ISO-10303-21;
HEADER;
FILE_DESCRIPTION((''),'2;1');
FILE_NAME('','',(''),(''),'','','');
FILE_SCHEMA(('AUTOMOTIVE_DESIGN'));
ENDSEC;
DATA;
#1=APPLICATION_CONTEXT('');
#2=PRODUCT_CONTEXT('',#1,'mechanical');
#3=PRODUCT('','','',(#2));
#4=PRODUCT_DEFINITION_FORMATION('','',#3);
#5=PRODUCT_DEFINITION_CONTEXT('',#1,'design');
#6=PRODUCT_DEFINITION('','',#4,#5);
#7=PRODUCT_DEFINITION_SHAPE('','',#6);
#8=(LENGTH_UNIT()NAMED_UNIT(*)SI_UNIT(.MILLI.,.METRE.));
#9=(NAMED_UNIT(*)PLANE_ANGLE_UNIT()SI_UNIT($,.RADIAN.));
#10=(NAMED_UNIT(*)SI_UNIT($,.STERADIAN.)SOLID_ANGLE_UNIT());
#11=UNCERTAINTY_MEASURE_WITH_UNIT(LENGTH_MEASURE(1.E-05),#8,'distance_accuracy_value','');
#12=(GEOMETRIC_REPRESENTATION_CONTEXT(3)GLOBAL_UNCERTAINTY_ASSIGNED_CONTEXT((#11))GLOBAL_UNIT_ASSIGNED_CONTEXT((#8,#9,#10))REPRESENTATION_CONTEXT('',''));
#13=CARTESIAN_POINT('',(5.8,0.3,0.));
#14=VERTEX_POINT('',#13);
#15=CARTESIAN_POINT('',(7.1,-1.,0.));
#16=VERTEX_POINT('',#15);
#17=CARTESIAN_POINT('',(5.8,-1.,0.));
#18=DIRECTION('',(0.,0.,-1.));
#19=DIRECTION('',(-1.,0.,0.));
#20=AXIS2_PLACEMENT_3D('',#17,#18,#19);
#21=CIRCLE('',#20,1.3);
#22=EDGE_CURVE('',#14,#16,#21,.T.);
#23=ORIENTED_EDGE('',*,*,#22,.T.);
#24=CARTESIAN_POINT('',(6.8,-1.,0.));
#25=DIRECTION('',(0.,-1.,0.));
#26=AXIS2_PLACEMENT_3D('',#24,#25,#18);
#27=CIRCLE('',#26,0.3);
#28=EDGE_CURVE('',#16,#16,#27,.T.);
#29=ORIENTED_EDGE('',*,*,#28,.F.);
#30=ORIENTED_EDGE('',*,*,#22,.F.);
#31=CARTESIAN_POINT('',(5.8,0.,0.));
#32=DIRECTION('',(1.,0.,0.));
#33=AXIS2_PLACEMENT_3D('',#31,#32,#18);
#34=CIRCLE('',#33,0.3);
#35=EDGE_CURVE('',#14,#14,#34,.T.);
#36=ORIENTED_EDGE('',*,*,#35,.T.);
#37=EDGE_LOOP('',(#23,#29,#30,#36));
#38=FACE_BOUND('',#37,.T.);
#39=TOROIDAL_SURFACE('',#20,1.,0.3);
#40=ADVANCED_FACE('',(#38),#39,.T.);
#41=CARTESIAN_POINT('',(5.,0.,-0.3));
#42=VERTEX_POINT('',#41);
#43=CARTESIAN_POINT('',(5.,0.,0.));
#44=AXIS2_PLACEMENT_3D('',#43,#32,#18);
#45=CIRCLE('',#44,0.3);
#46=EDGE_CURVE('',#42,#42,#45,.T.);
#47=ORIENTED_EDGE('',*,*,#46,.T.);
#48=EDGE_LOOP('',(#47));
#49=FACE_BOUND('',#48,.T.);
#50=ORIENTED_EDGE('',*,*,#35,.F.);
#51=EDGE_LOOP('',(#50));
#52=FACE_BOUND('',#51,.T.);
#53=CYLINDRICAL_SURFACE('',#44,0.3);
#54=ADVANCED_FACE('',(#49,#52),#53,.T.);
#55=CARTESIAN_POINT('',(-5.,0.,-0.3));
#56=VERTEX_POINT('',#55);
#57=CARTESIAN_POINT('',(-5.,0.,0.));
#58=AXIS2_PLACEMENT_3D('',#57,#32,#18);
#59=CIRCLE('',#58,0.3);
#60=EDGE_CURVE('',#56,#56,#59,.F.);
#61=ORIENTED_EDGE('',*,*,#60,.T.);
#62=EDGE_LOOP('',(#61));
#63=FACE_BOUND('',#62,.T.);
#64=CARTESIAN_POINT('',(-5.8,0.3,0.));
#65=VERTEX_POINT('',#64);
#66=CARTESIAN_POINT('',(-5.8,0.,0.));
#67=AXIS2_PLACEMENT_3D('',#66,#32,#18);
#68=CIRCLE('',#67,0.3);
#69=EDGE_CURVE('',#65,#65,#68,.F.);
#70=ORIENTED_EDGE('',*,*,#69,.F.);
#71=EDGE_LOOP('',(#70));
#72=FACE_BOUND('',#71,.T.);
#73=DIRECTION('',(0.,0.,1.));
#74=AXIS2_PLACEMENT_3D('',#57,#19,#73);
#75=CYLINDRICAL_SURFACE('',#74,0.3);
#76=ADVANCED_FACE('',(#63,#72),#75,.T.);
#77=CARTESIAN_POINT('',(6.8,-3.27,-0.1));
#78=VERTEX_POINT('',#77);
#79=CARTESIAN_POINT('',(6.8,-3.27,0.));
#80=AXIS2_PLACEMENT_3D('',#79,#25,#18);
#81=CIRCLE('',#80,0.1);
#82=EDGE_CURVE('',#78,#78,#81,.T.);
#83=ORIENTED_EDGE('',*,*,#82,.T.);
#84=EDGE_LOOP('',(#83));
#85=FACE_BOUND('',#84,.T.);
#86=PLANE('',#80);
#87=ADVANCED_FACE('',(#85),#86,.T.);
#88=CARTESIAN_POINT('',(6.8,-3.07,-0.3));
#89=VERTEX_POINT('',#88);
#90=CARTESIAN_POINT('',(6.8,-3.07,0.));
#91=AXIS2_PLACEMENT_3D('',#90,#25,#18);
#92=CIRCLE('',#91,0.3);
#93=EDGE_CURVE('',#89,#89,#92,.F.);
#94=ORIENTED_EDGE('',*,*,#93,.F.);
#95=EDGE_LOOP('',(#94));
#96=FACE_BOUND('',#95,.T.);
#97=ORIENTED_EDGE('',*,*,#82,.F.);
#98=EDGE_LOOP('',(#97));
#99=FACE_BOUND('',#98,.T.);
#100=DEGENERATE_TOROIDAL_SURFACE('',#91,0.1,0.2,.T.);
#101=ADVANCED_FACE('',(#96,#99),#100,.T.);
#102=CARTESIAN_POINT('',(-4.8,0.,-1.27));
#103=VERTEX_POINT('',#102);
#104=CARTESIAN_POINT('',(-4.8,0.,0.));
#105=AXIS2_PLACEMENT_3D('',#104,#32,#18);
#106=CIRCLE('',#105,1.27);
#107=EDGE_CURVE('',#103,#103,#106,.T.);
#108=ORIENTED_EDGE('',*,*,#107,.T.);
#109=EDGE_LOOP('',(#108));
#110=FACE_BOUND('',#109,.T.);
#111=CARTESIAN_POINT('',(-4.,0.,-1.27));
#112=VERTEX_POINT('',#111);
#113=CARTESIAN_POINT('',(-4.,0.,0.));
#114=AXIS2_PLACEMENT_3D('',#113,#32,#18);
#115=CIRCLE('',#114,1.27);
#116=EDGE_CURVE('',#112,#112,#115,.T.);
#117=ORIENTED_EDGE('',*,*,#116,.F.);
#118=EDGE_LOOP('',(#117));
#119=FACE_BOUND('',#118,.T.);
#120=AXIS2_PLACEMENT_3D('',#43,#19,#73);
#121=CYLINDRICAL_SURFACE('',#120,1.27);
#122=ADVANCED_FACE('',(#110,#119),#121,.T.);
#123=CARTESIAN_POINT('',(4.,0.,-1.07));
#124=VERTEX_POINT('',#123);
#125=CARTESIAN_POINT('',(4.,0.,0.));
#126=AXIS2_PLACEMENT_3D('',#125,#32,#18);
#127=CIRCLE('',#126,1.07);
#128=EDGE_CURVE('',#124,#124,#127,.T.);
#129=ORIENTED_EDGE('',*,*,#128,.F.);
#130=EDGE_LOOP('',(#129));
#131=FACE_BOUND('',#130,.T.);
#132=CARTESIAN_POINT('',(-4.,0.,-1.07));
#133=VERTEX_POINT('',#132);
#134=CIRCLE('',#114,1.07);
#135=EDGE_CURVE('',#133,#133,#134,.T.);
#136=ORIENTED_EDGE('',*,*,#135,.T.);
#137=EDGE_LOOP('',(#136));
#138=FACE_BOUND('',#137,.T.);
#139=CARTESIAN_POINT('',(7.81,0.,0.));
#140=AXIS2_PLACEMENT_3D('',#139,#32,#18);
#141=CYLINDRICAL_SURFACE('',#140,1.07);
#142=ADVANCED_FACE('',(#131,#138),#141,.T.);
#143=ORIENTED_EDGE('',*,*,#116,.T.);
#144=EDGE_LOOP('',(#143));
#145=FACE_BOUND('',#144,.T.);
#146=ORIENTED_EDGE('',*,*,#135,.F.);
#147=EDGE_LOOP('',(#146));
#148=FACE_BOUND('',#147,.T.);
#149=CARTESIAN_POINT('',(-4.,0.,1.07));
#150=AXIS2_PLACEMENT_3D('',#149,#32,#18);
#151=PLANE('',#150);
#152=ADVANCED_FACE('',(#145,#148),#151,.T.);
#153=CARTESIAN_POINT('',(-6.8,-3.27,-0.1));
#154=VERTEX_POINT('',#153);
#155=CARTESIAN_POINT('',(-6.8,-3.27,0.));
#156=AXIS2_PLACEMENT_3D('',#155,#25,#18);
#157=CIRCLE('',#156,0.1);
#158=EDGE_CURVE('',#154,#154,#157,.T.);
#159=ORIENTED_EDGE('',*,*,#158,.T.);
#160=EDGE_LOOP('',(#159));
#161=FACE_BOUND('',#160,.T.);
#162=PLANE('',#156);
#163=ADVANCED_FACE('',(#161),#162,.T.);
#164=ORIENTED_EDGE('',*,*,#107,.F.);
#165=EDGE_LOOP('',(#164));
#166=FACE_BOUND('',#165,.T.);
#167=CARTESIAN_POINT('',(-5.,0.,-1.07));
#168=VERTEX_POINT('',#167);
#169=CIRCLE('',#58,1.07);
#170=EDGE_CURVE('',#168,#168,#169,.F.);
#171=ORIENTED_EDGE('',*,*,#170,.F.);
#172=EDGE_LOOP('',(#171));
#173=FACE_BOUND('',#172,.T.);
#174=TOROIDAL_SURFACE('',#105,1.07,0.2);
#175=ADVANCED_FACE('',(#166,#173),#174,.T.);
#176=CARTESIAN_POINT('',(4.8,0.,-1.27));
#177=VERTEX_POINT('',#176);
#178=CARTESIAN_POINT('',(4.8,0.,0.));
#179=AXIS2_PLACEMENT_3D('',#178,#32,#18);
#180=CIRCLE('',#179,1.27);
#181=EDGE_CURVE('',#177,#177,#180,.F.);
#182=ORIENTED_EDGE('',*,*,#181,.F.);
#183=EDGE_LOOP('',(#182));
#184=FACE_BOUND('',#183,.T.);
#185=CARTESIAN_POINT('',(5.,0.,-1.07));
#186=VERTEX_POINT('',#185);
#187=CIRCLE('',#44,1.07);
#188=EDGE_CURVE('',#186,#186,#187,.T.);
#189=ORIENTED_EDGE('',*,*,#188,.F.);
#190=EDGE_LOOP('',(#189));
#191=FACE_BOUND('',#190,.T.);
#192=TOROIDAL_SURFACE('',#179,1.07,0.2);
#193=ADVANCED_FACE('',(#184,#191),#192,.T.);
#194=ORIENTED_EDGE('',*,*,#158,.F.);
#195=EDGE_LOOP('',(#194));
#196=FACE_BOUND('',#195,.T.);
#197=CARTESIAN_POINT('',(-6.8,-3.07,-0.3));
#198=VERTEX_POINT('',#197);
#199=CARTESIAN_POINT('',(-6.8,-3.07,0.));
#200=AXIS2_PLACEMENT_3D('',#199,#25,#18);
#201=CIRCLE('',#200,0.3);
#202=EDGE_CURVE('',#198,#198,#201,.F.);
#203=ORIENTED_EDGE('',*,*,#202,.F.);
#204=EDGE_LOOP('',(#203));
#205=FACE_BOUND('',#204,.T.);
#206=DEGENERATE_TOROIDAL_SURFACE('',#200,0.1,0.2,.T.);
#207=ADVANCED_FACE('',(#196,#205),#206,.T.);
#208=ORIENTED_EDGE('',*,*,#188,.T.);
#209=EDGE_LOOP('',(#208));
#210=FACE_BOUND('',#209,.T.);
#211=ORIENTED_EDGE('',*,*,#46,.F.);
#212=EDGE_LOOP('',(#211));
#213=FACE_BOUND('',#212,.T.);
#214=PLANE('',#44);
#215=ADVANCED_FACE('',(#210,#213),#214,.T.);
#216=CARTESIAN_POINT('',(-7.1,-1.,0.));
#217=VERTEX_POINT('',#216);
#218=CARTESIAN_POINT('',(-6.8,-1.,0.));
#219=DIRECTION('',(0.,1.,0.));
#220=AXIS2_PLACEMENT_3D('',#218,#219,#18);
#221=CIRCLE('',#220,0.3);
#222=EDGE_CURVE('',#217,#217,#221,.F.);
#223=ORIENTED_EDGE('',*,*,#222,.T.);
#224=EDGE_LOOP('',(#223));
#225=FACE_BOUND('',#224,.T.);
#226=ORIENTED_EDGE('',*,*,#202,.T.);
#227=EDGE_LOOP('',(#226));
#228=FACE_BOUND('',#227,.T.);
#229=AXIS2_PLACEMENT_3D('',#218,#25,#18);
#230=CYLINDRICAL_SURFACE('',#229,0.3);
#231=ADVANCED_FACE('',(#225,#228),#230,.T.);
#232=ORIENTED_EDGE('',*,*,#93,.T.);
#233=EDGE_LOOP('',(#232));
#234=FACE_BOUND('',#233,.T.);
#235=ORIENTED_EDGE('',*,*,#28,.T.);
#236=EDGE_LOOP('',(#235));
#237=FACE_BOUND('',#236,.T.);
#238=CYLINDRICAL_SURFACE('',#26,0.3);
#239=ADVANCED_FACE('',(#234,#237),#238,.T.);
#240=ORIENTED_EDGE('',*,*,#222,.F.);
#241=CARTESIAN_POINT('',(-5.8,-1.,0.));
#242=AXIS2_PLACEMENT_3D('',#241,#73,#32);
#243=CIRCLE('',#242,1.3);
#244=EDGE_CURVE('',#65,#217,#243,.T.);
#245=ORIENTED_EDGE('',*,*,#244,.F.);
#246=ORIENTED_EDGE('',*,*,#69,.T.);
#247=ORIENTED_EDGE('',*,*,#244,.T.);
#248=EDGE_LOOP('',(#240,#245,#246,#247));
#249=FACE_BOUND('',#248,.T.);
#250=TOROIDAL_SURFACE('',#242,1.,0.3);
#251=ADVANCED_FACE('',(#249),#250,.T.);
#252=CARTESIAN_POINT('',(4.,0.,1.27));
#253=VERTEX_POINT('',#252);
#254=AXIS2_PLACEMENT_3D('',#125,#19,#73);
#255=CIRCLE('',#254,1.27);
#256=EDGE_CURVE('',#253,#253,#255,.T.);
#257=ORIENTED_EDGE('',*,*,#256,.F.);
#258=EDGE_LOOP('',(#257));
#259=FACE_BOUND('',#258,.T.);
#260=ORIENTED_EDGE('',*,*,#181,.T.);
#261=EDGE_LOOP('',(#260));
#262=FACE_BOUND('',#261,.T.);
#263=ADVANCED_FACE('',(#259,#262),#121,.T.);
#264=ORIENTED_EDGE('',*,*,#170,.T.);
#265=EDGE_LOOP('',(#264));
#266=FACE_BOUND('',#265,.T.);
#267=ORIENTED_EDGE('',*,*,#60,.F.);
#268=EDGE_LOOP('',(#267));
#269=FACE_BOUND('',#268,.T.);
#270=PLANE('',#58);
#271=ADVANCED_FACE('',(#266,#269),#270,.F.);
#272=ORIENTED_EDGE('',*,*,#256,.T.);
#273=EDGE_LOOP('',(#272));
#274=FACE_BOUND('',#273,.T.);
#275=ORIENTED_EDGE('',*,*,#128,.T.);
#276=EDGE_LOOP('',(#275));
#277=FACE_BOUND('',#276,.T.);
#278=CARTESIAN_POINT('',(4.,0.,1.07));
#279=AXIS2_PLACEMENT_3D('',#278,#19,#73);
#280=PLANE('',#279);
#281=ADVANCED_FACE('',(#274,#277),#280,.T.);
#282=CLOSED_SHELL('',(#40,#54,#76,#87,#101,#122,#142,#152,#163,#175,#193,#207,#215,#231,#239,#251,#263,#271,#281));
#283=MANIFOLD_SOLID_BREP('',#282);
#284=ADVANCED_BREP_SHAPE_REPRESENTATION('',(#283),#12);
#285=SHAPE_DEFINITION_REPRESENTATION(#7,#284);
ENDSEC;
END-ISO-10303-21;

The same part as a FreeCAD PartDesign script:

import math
import FreeCAD as App
import Part
import Sketcher
Q = App.Units.Quantity


def edges_at(feature, points):
    """Names of the edges that pass closest to the given points."""
    edges = feature.Shape.Edges
    near = lambda p: min(range(len(edges)), key=lambda i: edges[i].distToShape(Part.Vertex(*p))[0])
    return sorted({f"Edge{near(p) + 1}" for p in points})


def add_polygon(sketch, points):
    """Adds a closed chain of lines whose ends are joined by coincident constraints."""
    first, n = sketch.GeometryCount, len(points)
    for a, b in zip(points, points[1:] + points[:1]):
        sketch.addGeometry(Part.LineSegment(App.Vector(*a, 0), App.Vector(*b, 0)), False)
    for i in range(n):
        sketch.addConstraint(Sketcher.Constraint("Coincident", first + i, 2, first + (i + 1) % n, 1))

doc = App.newDocument("Part")
body = doc.addObject("PartDesign::Body", "Body")

# Sketch on YZ plane
sketch1 = doc.addObject("Sketcher::SketchObject", "Sketch")
body.addObject(sketch1)
sketch1.AttachmentSupport = (doc.YZ_Plane, [""])
sketch1.MapMode = "FlatFace"
sketch1.addGeometry(Part.Circle(App.Vector(0, 0, 0), App.Vector(0, 0, 1), 1.3), False)
sketch1.addConstraint(Sketcher.Constraint("Coincident", 0, 3, -1, 1))
sketch1.addConstraint(Sketcher.Constraint("Diameter", 0, Q("2.54 mm")))
pad1 = doc.addObject("PartDesign::Pad", "Pad")
body.addObject(pad1)
pad1.Profile = sketch1
pad1.Length = 10
pad1.Midplane = True
doc.recompute()

fillet = doc.addObject("PartDesign::Fillet", "Fillet")
body.addObject(fillet)
fillet.Base = (pad1, edges_at(pad1, [(-5, 0, 1.27), (5, 0, 1.27)]))
fillet.Radius = 0.2

# Sketch on YZ plane
sketch2 = doc.addObject("Sketcher::SketchObject", "Sketch001")
body.addObject(sketch2)
sketch2.AttachmentSupport = (doc.YZ_Plane, [""])
sketch2.MapMode = "FlatFace"
sketch2.AttachmentOffset = App.Placement(App.Vector(0, 0, 5), App.Rotation())
sketch2.addGeometry(Part.Circle(App.Vector(0, 0, 0), App.Vector(0, 0, 1), 0.3), False)
sketch2.addConstraint(Sketcher.Constraint("Coincident", 0, 3, -1, 1))
sketch2.addConstraint(Sketcher.Constraint("Diameter", 0, Q("0.6 mm")))

# Sketch on XY plane
sketch3 = doc.addObject("Sketcher::SketchObject", "Sketch002")
body.addObject(sketch3)
sketch3.AttachmentSupport = (doc.XY_Plane, [""])
sketch3.MapMode = "FlatFace"
sketch3.addGeometry(Part.LineSegment(App.Vector(5, 0, 0), App.Vector(5.8, 0, 0)), False)
sketch3.addGeometry(Part.ArcOfCircle(Part.Circle(App.Vector(5.8, -1, 0), App.Vector(0, 0, 1), 1), math.radians(0), math.radians(90)), False)
sketch3.addGeometry(Part.LineSegment(App.Vector(6.8, -1, 0), App.Vector(6.8, -3.3, 0)), False)
sketch3.addConstraint(Sketcher.Constraint("Tangent", 0, 2, 1, 2))
sketch3.addConstraint(Sketcher.Constraint("Tangent", 1, 1, 2, 1))
sketch3.addConstraint(Sketcher.Constraint("Horizontal", 0))
sketch3.addConstraint(Sketcher.Constraint("Vertical", 2))
sketch3.addConstraint(Sketcher.Constraint("PointOnObject", 0, 1, -1))
sketch3.addConstraint(Sketcher.Constraint("Radius", 1, Q("1 mm")))
sketch3.addConstraint(Sketcher.Constraint("DistanceX", 0, 1, 0, 2, Q("0.8 mm")))
sketch3.addConstraint(Sketcher.Constraint("DistanceX", -1, 1, 0, 1, Q("5 mm")))
sketch3.addConstraint(Sketcher.Constraint("DistanceY", 2, 2, 2, 1, Q("2.27 mm")))
doc.recompute()

additivepipe = doc.addObject("PartDesign::AdditivePipe", "AdditivePipe")
body.addObject(additivepipe)
additivepipe.Profile = sketch2
additivepipe.Spine = (sketch3, ["Edge1", "Edge2", "Edge3"])
doc.recompute()

fillet2 = doc.addObject("PartDesign::Fillet", "Fillet001")
body.addObject(fillet2)
fillet2.Base = (additivepipe, edges_at(additivepipe, [(6.8, -3.27, 0.3)]))
fillet2.Radius = 0.2
doc.recompute()

mirrored = doc.addObject("PartDesign::Mirrored", "Mirrored")
body.addObject(mirrored)
mirrored.Originals = [additivepipe]
mirrored.MirrorPlane = (doc.YZ_Plane, [""])
body.Tip = mirrored
doc.recompute()

fillet3 = doc.addObject("PartDesign::Fillet", "Fillet002")
body.addObject(fillet3)
fillet3.Base = (mirrored, edges_at(mirrored, [(-6.8, -3.27, 0.3)]))
fillet3.Radius = 0.2

# Sketch on XZ plane
sketch4 = doc.addObject("Sketcher::SketchObject", "Sketch003")
body.addObject(sketch4)
sketch4.AttachmentSupport = (doc.XZ_Plane, [""])
sketch4.MapMode = "FlatFace"
add_polygon(sketch4, [(-4, 1.1), (-4, 2.1), (4, 2.1), (4, 1.1)])  # lines 0-3
sketch4.addConstraint(Sketcher.Constraint("Vertical", 0))
sketch4.addConstraint(Sketcher.Constraint("Horizontal", 1))
sketch4.addConstraint(Sketcher.Constraint("Vertical", 2))
sketch4.addConstraint(Sketcher.Constraint("Horizontal", 3))
sketch4.addConstraint(Sketcher.Constraint("DistanceX", 1, 1, 1, 2, Q("8 mm")))
sketch4.addConstraint(Sketcher.Constraint("DistanceX", 0, 2, -1, 1, Q("4 mm")))
sketch4.addConstraint(Sketcher.Constraint("DistanceY", -1, 1, 2, 2, Q("1.07 mm")))
sketch4.addConstraint(Sketcher.Constraint("DistanceY", 0, 1, 0, 2, Q("0.981075 mm")))
groove = doc.addObject("PartDesign::Groove", "Groove")
body.addObject(groove)
groove.Profile = sketch4
groove.ReferenceAxis = (sketch4, ["H_Axis"])
groove.Angle = 360

doc.recompute()
